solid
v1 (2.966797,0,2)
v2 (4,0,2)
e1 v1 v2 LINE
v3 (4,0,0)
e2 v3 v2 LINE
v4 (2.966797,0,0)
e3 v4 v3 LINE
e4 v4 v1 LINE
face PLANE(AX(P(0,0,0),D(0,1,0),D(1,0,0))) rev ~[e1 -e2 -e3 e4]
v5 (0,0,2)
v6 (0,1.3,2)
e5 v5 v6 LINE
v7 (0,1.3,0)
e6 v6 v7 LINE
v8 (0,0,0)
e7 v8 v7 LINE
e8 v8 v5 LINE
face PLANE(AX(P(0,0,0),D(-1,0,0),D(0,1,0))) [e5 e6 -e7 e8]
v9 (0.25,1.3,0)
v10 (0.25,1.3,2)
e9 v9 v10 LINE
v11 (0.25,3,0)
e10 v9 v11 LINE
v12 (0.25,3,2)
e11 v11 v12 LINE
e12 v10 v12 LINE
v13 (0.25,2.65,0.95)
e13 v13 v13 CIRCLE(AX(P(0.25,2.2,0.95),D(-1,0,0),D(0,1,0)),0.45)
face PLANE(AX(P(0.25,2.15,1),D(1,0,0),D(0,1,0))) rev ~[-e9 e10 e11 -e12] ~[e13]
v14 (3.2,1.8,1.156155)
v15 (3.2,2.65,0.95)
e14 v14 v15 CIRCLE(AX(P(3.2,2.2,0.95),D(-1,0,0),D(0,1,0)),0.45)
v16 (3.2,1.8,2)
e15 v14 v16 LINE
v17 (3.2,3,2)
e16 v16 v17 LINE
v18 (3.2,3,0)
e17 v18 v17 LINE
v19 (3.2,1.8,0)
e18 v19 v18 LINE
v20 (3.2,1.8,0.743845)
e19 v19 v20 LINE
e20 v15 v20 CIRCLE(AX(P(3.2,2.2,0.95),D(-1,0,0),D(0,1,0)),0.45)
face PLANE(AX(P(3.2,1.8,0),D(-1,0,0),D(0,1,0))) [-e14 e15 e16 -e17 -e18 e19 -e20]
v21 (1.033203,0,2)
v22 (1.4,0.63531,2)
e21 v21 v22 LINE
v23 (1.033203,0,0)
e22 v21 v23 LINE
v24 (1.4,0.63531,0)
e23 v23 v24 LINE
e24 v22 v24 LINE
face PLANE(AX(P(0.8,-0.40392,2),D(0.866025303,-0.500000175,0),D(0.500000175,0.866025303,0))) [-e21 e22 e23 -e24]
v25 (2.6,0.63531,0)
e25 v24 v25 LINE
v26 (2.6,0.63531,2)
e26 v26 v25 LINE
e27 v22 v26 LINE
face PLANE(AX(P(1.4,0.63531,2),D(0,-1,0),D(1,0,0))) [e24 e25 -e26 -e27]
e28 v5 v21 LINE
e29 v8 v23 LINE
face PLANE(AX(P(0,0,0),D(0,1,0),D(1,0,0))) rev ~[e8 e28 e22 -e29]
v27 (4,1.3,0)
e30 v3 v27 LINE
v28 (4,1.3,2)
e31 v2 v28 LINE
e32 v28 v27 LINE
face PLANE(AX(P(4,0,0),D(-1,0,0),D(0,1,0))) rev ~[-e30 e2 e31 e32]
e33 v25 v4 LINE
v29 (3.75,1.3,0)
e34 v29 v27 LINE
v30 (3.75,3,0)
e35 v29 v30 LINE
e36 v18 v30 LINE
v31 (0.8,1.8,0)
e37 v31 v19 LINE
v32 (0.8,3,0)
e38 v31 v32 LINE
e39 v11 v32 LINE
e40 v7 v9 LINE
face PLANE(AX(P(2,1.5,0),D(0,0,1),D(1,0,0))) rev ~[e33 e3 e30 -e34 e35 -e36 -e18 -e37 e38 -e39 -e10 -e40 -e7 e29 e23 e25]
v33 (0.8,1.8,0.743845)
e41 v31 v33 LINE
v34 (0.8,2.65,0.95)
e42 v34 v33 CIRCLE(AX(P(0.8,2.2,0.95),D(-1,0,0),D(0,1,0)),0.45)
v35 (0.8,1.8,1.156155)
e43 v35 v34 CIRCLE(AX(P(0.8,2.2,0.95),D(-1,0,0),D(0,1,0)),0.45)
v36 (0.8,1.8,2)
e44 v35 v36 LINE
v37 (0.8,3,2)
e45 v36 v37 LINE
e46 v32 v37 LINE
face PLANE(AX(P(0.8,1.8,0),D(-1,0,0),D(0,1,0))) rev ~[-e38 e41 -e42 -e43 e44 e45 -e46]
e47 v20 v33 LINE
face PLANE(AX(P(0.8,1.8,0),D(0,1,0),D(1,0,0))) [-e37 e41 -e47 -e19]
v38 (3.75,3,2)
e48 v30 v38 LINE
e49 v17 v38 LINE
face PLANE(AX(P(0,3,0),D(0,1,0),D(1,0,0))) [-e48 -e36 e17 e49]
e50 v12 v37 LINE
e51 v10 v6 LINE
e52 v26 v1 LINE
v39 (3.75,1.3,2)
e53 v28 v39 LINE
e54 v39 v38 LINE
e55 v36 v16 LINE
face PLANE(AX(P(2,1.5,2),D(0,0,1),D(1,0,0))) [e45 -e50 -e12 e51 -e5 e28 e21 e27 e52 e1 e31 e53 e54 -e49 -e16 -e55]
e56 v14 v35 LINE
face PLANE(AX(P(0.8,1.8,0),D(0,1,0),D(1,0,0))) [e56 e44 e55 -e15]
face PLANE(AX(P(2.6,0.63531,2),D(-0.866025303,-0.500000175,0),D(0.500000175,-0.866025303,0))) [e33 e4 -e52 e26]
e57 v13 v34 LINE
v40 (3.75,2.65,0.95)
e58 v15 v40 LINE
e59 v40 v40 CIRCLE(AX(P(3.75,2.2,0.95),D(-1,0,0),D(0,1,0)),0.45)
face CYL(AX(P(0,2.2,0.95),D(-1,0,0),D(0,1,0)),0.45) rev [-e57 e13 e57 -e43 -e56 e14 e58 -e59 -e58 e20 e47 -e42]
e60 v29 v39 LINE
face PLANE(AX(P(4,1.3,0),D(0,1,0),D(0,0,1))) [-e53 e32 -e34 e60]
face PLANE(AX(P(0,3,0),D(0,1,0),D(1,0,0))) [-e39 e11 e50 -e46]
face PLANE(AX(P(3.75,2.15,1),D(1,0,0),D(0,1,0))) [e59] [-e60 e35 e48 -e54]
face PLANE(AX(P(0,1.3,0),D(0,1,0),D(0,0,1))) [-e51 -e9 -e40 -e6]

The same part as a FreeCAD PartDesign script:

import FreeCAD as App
import Part
import Sketcher

V = App.Vector
Q = App.Units.Quantity


def add_polygon(sketch, points):
    """Adds a closed chain of lines whose ends are joined by coincident constraints."""
    first, n = sketch.GeometryCount, len(points)
    for a, b in zip(points, points[1:] + points[:1]):
        sketch.addGeometry(Part.LineSegment(App.Vector(*a, 0), App.Vector(*b, 0)), False)
    for i in range(n):
        sketch.addConstraint(Sketcher.Constraint("Coincident", first + i, 2, first + (i + 1) % n, 1))

doc = App.newDocument("Part")
body = doc.addObject("PartDesign::Body", "Body")

# Sketch on XY plane
sketch1 = body.newObject("Sketcher::SketchObject", "Sketch")
sketch1.AttachmentSupport = (doc.getObject("XY_Plane"), [""])
sketch1.MapMode = "FlatFace"
add_polygon(sketch1, [(0, 3), (0, 0), (4, 0), (4, 3)])  # lines 0-3
sketch1.addConstraint([
    Sketcher.Constraint("Vertical", 0),
    Sketcher.Constraint("Horizontal", 1),
    Sketcher.Constraint("Vertical", 2),
    Sketcher.Constraint("Horizontal", 3),
    Sketcher.Constraint("Coincident", 0, 2, -1, 1),
    Sketcher.Constraint("DistanceX", 1, 1, 1, 2, 4.0),
    Sketcher.Constraint("DistanceY", 0, 2, 0, 1, 3.0),
])
pad1 = body.newObject("PartDesign::Pad", "Pad")
pad1.Profile = sketch1
pad1.Length = 2

# Sketch on YZ plane
sketch2 = body.newObject("Sketcher::SketchObject", "Sketch001")
sketch2.AttachmentSupport = (doc.getObject("YZ_Plane"), [""])
sketch2.MapMode = "FlatFace"
add_polygon(sketch2, [(1.3, 2), (1.3, 0), (3, 0), (3, 2)])  # lines 0-3
sketch2.addConstraint([
    Sketcher.Constraint("Vertical", 0),
    Sketcher.Constraint("Horizontal", 1),
    Sketcher.Constraint("Vertical", 2),
    Sketcher.Constraint("Horizontal", 3),
    Sketcher.Constraint("PointOnObject", 0, 2, -1),
    Sketcher.Constraint("DistanceY", 0, 2, 0, 1, 2.0),
    Sketcher.Constraint("DistanceX", 1, 1, 1, 2, 1.7),
    Sketcher.Constraint("DistanceX", -1, 1, 1, 2, 3.0),
])
pocket1 = body.newObject("PartDesign::Pocket", "Pocket")
pocket1.Profile = sketch2
pocket1.Length = 0.5
pocket1.Midplane = True

# Sketch on YZ plane
sketch3 = body.newObject("Sketcher::SketchObject", "Sketch002")
sketch3.AttachmentSupport = (doc.getObject("YZ_Plane"), [""])
sketch3.MapMode = "FlatFace"
sketch3.AttachmentOffset = App.Placement(V(0, 0, 4), App.Rotation())
add_polygon(sketch3, [(1.3, 2), (1.3, 0), (3, 0), (3, 2)])  # lines 0-3
sketch3.addConstraint([
    Sketcher.Constraint("Vertical", 0),
    Sketcher.Constraint("Horizontal", 1),
    Sketcher.Constraint("Vertical", 2),
    Sketcher.Constraint("Horizontal", 3),
    Sketcher.Constraint("PointOnObject", 0, 2, -1),
    Sketcher.Constraint("DistanceY", 0, 2, 0, 1, 2.0),
    Sketcher.Constraint("DistanceX", 1, 1, 1, 2, 1.7),
    Sketcher.Constraint("DistanceX", -1, 1, 1, 2, 3.0),
])
pocket2 = body.newObject("PartDesign::Pocket", "Pocket001")
pocket2.Profile = sketch3
pocket2.Length = 0.5
pocket2.Midplane = True

# Sketch on XY plane
sketch4 = body.newObject("Sketcher::SketchObject", "Sketch003")
sketch4.AttachmentSupport = (doc.getObject("XY_Plane"), [""])
sketch4.MapMode = "FlatFace"
sketch4.AttachmentOffset = App.Placement(V(0, 0, 2), App.Rotation())
add_polygon(sketch4, [(3.2, -0.4), (2.6, -1.4), (1.4, -1.4), (0.8, -0.4), (1.4, 0.6), (2.6, 0.6)])  # lines 0-5
sketch4.addConstraint([
    Sketcher.Constraint("Horizontal", 1),
    Sketcher.Constraint("Horizontal", 4),
    Sketcher.Constraint("Parallel", 0, 3),
    Sketcher.Constraint("Parallel", 2, 5),
    Sketcher.Constraint("Horizontal", 2, 2, 5, 2),
    Sketcher.Constraint("Vertical", 1, 2, 3, 2),
    Sketcher.Constraint("Vertical", 0, 2, 4, 2),
    Sketcher.Constraint("Angle", 0, Q("-120.000012 deg")),
    Sketcher.Constraint("DistanceX", 1, 2, 1, 1, 1.2),
    Sketcher.Constraint("Distance", 0, 1.2),
    Sketcher.Constraint("DistanceX", -1, 1, 0, 2, 2.6),
    Sketcher.Constraint("DistanceY", 0, 2, -1, 1, 1.44315),
])
pocket3 = body.newObject("PartDesign::Pocket", "Pocket002")
pocket3.Profile = sketch4
pocket3.Length = 2

# Sketch on YZ plane
sketch5 = body.newObject("Sketcher::SketchObject", "Sketch004")
sketch5.AttachmentSupport = (doc.getObject("YZ_Plane"), [""])
sketch5.MapMode = "FlatFace"
sketch5.AttachmentOffset = App.Placement(V(0, 0, 3.75), App.Rotation())
sketch5.addGeometry(Part.Circle(V(-2.55, 1, 0), V(0, 0, 1), 0.45), False)
sketch5.addConstraint([
    Sketcher.Constraint("Diameter", 0, 0.9),
    Sketcher.Constraint("DistanceY", -1, 1, 0, 3, 1.0),
    Sketcher.Constraint("DistanceX", 0, 3, -1, 1, 2.55392),
])
pocket4 = body.newObject("PartDesign::Pocket", "Pocket003")
pocket4.Profile = sketch5
pocket4.Length = 5

# Sketch on XY plane
sketch6 = body.newObject("Sketcher::SketchObject", "Sketch005")
sketch6.AttachmentSupport = (doc.getObject("XY_Plane"), [""])
sketch6.MapMode = "FlatFace"
add_polygon(sketch6, [(0.8, 3), (0.8, 1.8), (3.2, 1.8), (3.2, 3)])  # lines 0-3
sketch6.addConstraint([
    Sketcher.Constraint("Vertical", 0),
    Sketcher.Constraint("Horizontal", 1),
    Sketcher.Constraint("Vertical", 2),
    Sketcher.Constraint("Horizontal", 3),
    Sketcher.Constraint("DistanceX", 1, 1, 1, 2, 2.4),
    Sketcher.Constraint("DistanceY", 0, 2, 0, 1, 1.2),
    Sketcher.Constraint("DistanceY", -1, 1, 2, 2, 3.0),
    Sketcher.Constraint("DistanceX", -1, 1, 0, 2, 0.8),
])
pocket5 = body.newObject("PartDesign::Pocket", "Pocket004")
pocket5.Profile = sketch6
pocket5.Length = 2
pocket5.Reversed = True

# Sketch on YZ plane
sketch7 = body.newObject("Sketcher::SketchObject", "Sketch006")
sketch7.AttachmentSupport = (doc.getObject("YZ_Plane"), [""])
sketch7.MapMode = "FlatFace"
sketch7.addGeometry(Part.Circle(V(2.2, 0.95, 0), V(0, 0, 1), 0.45), False)
sketch7.addConstraint([
    Sketcher.Constraint("Diameter", 0, 0.9),
    Sketcher.Constraint("DistanceX", -1, 1, 0, 3, 2.2),
    Sketcher.Constraint("DistanceY", -1, 1, 0, 3, 0.95),
])
pocket6 = body.newObject("PartDesign::Pocket", "Pocket005")
pocket6.Profile = sketch7
pocket6.Type = "ThroughAll"
pocket6.Midplane = True

doc.recompute()
